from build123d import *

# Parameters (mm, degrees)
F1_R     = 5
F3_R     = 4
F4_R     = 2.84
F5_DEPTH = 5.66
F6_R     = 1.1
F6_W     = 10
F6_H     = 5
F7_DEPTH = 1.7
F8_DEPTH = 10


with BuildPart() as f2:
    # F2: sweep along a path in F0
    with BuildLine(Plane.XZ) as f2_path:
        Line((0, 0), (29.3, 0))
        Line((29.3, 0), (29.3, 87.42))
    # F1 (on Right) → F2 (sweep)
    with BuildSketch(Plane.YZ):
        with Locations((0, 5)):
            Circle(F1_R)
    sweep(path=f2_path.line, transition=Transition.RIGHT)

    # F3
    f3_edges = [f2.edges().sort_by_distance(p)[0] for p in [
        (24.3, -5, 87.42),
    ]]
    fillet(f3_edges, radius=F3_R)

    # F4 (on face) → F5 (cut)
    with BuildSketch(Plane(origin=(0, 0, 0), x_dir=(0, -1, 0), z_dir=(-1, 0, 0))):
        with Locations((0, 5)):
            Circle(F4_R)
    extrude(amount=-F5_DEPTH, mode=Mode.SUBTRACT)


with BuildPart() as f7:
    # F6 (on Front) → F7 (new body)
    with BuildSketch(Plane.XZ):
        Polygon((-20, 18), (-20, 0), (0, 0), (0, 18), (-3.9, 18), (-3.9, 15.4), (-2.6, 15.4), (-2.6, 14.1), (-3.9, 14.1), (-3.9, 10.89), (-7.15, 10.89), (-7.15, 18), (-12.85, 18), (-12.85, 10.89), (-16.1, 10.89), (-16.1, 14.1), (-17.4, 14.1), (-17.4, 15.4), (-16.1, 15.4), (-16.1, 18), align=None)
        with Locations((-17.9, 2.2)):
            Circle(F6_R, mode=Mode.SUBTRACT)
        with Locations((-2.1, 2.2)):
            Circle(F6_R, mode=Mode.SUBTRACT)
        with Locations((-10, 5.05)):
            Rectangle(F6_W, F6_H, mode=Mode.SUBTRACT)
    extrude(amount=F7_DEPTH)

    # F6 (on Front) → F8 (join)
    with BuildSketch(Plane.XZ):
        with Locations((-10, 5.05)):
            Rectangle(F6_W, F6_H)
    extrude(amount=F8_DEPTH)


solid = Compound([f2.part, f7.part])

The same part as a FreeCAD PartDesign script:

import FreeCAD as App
import Part
import Sketcher

V = App.Vector


def edges_at(feature, points):
    """Names of the edges that pass closest to the given points."""
    edges = feature.Shape.Edges
    near = lambda p: min(range(len(edges)), key=lambda i: edges[i].distToShape(Part.Vertex(*p))[0])
    return sorted({f"Edge{near(p) + 1}" for p in points})

doc = App.newDocument("Part")
params = doc.addObject("Spreadsheet::Sheet", "Params")
for row, (alias, value) in enumerate([
    ("sketch1_diameter", "10 mm"),
    ("sketch2_width", "29.3 mm"),
    ("sketch2_height", "87.42 mm"),
    ("fillet_radius", "4 mm"),
    ("sketch3_diameter", "5.68 mm"),
    ("pocket1_length", "5.66 mm"),
    ("sketch4_diameter", "2.2 mm"),
    ("sketch4_width", "20 mm"),
    ("sketch4_width2", "10 mm"),
    ("sketch4_height", "18 mm"),
    ("sketch4_height2", "5 mm"),
    ("pad1_length", "1.7 mm"),
    ("sketch5_width", "10 mm"),
    ("sketch5_height", "5 mm"),
    ("pad2_length", "10 mm"),
], start=1):
    params.set(f"A{row}", alias)
    params.set(f"B{row}", "=" + value)
    params.setAlias(f"B{row}", alias)

body = doc.addObject("PartDesign::Body", "Body")

sketch1 = body.newObject("Sketcher::SketchObject", "Sketch")
sketch1.AttachmentSupport = (doc.getObject("YZ_Plane"), [""])
sketch1.MapMode = "FlatFace"
sketch1.addGeometry(Part.Circle(V(0, 5, 0), V(0, 0, 1), 5), False)
sketch1.addConstraint([
    Sketcher.Constraint("PointOnObject", 0, 3, -2),
    Sketcher.Constraint("Diameter", 0, 10.0),
    Sketcher.Constraint("DistanceY", -1, 1, 0, 3, 5.0),
])
sketch1.setExpression("Constraints[1]", "Params.sketch1_diameter")

sketch2 = body.newObject("Sketcher::SketchObject", "Sketch001")
sketch2.AttachmentSupport = (doc.getObject("XZ_Plane"), [""])
sketch2.MapMode = "FlatFace"
sketch2.addGeometry([
    Part.LineSegment(V(0, 0, 0), V(29.3, 0, 0)),
    Part.LineSegment(V(29.3, 0, 0), V(29.3, 87.42, 0)),
], False)
sketch2.addConstraint([
    Sketcher.Constraint("Coincident", 0, 2, 1, 1),
    Sketcher.Constraint("Horizontal", 0),
    Sketcher.Constraint("Vertical", 1),
    Sketcher.Constraint("Coincident", 0, 1, -1, 1),
    Sketcher.Constraint("DistanceX", 0, 1, 0, 2, 29.3),
    Sketcher.Constraint("DistanceY", 1, 1, 1, 2, 87.42),
])
sketch2.setExpression("Constraints[4]", "Params.sketch2_width")
sketch2.setExpression("Constraints[5]", "Params.sketch2_height")
doc.recompute()

additivepipe = body.newObject("PartDesign::AdditivePipe", "AdditivePipe")
additivepipe.Profile = sketch1
additivepipe.Spine = (sketch2, ["Edge1", "Edge2"])
additivepipe.Transition = "Right corner"
doc.recompute()

fillet = body.newObject("PartDesign::Fillet", "Fillet")
fillet.Base = (additivepipe, edges_at(additivepipe, [(24.3, -5, 87.42)]))
fillet.setExpression("Radius", "Params.fillet_radius")

sketch3 = body.newObject("Sketcher::SketchObject", "Sketch002")
sketch3.AttachmentSupport = (doc.getObject("YZ_Plane"), [""])
sketch3.MapMode = "FlatFace"
sketch3.addGeometry(Part.Circle(V(0, 5, 0), V(0, 0, 1), 2.84), False)
sketch3.addConstraint([
    Sketcher.Constraint("PointOnObject", 0, 3, -2),
    Sketcher.Constraint("Diameter", 0, 5.68),
    Sketcher.Constraint("DistanceY", -1, 1, 0, 3, 5.0),
])
sketch3.setExpression("Constraints[1]", "Params.sketch3_diameter")
pocket1 = body.newObject("PartDesign::Pocket", "Pocket")
pocket1.Profile = sketch3
pocket1.setExpression("Length", "Params.pocket1_length")
pocket1.Reversed = True
body2 = doc.addObject("PartDesign::Body", "Body001")

sketch4 = body2.newObject("Sketcher::SketchObject", "Sketch003")
sketch4.AttachmentSupport = (doc.getObject("XZ_Plane001"), [""])
sketch4.MapMode = "FlatFace"
sketch4.addGeometry([
    Part.LineSegment(V(-20, 18, 0), V(-20, 0, 0)),
    Part.LineSegment(V(-20, 0, 0), V(0, 0, 0)),
    Part.LineSegment(V(0, 0, 0), V(0, 18, 0)),
    Part.LineSegment(V(0, 18, 0), V(-3.9, 18, 0)),
    Part.LineSegment(V(-3.9, 18, 0), V(-3.9, 15.4, 0)),
    Part.LineSegment(V(-3.9, 15.4, 0), V(-2.6, 15.4, 0)),
    Part.LineSegment(V(-2.6, 15.4, 0), V(-2.6, 14.1, 0)),
    Part.LineSegment(V(-2.6, 14.1, 0), V(-3.9, 14.1, 0)),
    Part.LineSegment(V(-3.9, 14.1, 0), V(-3.9, 10.89, 0)),
    Part.LineSegment(V(-3.9, 10.89, 0), V(-7.15, 10.89, 0)),
    Part.LineSegment(V(-7.15, 10.89, 0), V(-7.15, 18, 0)),
    Part.LineSegment(V(-7.15, 18, 0), V(-12.85, 18, 0)),
    Part.LineSegment(V(-12.85, 18, 0), V(-12.85, 10.89, 0)),
    Part.LineSegment(V(-12.85, 10.89, 0), V(-16.1, 10.89, 0)),
    Part.LineSegment(V(-16.1, 10.89, 0), V(-16.1, 14.1, 0)),
    Part.LineSegment(V(-16.1, 14.1, 0), V(-17.4, 14.1, 0)),
    Part.LineSegment(V(-17.4, 14.1, 0), V(-17.4, 15.4, 0)),
    Part.LineSegment(V(-17.4, 15.4, 0), V(-16.1, 15.4, 0)),
    Part.LineSegment(V(-16.1, 15.4, 0), V(-16.1, 18, 0)),
    Part.LineSegment(V(-16.1, 18, 0), V(-20, 18, 0)),
    Part.Circle(V(-17.9, 2.2, 0), V(0, 0, 1), 1.1),
    Part.Circle(V(-2.1, 2.2, 0), V(0, 0, 1), 1.1),
    Part.LineSegment(V(-5, 2.55, 0), V(-15, 2.55, 0)),
    Part.LineSegment(V(-15, 2.55, 0), V(-15, 7.55, 0)),
    Part.LineSegment(V(-15, 7.55, 0), V(-5, 7.55, 0)),
    Part.LineSegment(V(-5, 7.55, 0), V(-5, 2.55, 0)),
], False)
sketch4.addConstraint([
    Sketcher.Constraint("Coincident", 0, 2, 1, 1),
    Sketcher.Constraint("Coincident", 1, 2, 2, 1),
    Sketcher.Constraint("Coincident", 2, 2, 3, 1),
    Sketcher.Constraint("Coincident", 3, 2, 4, 1),
    Sketcher.Constraint("Coincident", 4, 2, 5, 1),
    Sketcher.Constraint("Coincident", 5, 2, 6, 1),
    Sketcher.Constraint("Coincident", 6, 2, 7, 1),
    Sketcher.Constraint("Coincident", 7, 2, 8, 1),
    Sketcher.Constraint("Coincident", 8, 2, 9, 1),
    Sketcher.Constraint("Coincident", 9, 2, 10, 1),
    Sketcher.Constraint("Coincident", 10, 2, 11, 1),
    Sketcher.Constraint("Coincident", 11, 2, 12, 1),
    Sketcher.Constraint("Coincident", 12, 2, 13, 1),
    Sketcher.Constraint("Coincident", 13, 2, 14, 1),
    Sketcher.Constraint("Coincident", 14, 2, 15, 1),
    Sketcher.Constraint("Coincident", 15, 2, 16, 1),
    Sketcher.Constraint("Coincident", 16, 2, 17, 1),
    Sketcher.Constraint("Coincident", 17, 2, 18, 1),
    Sketcher.Constraint("Coincident", 18, 2, 19, 1),
    Sketcher.Constraint("Coincident", 19, 2, 0, 1),
    Sketcher.Constraint("Coincident", 22, 2, 23, 1),
    Sketcher.Constraint("Coincident", 23, 2, 24, 1),
    Sketcher.Constraint("Coincident", 24, 2, 25, 1),
    Sketcher.Constraint("Coincident", 25, 2, 22, 1),
    Sketcher.Constraint("Vertical", 0),
    Sketcher.Constraint("Horizontal", 1),
    Sketcher.Constraint("Vertical", 2),
    Sketcher.Constraint("Horizontal", 3),
    Sketcher.Constraint("Vertical", 4),
    Sketcher.Constraint("Horizontal", 5),
    Sketcher.Constraint("Vertical", 6),
    Sketcher.Constraint("Horizontal", 7),
    Sketcher.Constraint("Vertical", 8),
    Sketcher.Constraint("Horizontal", 9),
    Sketcher.Constraint("Vertical", 10),
    Sketcher.Constraint("Horizontal", 11),
    Sketcher.Constraint("Vertical", 12),
    Sketcher.Constraint("Horizontal", 13),
    Sketcher.Constraint("Vertical", 14),
    Sketcher.Constraint("Horizontal", 15),
    Sketcher.Constraint("Vertical", 16),
    Sketcher.Constraint("Horizontal", 17),
    Sketcher.Constraint("Vertical", 18),
    Sketcher.Constraint("Horizontal", 19),
    Sketcher.Constraint("Horizontal", 22),
    Sketcher.Constraint("Vertical", 23),
    Sketcher.Constraint("Horizontal", 24),
    Sketcher.Constraint("Vertical", 25),
    Sketcher.Constraint("Coincident", 1, 2, -1, 1),
    Sketcher.Constraint("Equal", 20, 21),
    Sketcher.Constraint("Horizontal", 20, 3, 21, 3),
    Sketcher.Constraint("Horizontal", 3, 2, 10, 2),
    Sketcher.Constraint("Horizontal", 9, 2, 12, 2),
    Sketcher.Constraint("Horizontal", 7, 2, 14, 2),
    Sketcher.Constraint("Horizontal", 5, 2, 16, 2),
    Sketcher.Constraint("Horizontal", 11, 2, 18, 2),
    Sketcher.Constraint("Vertical", 4, 2, 7, 2),
    Sketcher.Constraint("Vertical", 14, 2, 17, 2),
    Sketcher.Constraint("Equal", 9, 13),
    Sketcher.Constraint("Equal", 7, 15),
    Sketcher.Constraint("Equal", 3, 19),
    Sketcher.Constraint("Equal", 17, 6),
    Sketcher.Constraint("Diameter", 20, 2.2),
    Sketcher.Constraint("DistanceX", 1, 1, 1, 2, 20.0),
    Sketcher.Constraint("DistanceX", 22, 2, 22, 1, 10.0),
    Sketcher.Constraint("DistanceY", 0, 2, 0, 1, 18.0),
    Sketcher.Constraint("DistanceY", 23, 1, 23, 2, 5.0),
    Sketcher.Constraint("DistanceX", 3, 2, 3, 1, 3.9),
    Sketcher.Constraint("DistanceX", 5, 1, 5, 2, 1.3),
    Sketcher.Constraint("DistanceX", 11, 2, 11, 1, 5.7),
    Sketcher.Constraint("DistanceY", 4, 2, 4, 1, 2.6),
    Sketcher.Constraint("DistanceX", 22, 2, -1, 1, 15.0),
    Sketcher.Constraint("DistanceX", 20, 3, 3, 2, 14.0),
    Sketcher.Constraint("DistanceY", 8, 2, 8, 1, 3.21),
    Sketcher.Constraint("DistanceY", -1, 1, 20, 3, 2.2),
    Sketcher.Constraint("DistanceX", 21, 3, -1, 1, 2.1),
    Sketcher.Constraint("DistanceY", -1, 1, 22, 2, 2.55),
])
sketch4.setExpression("Constraints[62]", "Params.sketch4_diameter")
sketch4.setExpression("Constraints[63]", "Params.sketch4_width")
sketch4.setExpression("Constraints[64]", "Params.sketch4_width2")
sketch4.setExpression("Constraints[65]", "Params.sketch4_height")
sketch4.setExpression("Constraints[66]", "Params.sketch4_height2")
pad1 = body2.newObject("PartDesign::Pad", "Pad")
pad1.Profile = sketch4
pad1.setExpression("Length", "Params.pad1_length")

sketch5 = body2.newObject("Sketcher::SketchObject", "Sketch004")
sketch5.AttachmentSupport = (doc.getObject("XZ_Plane001"), [""])
sketch5.MapMode = "FlatFace"
sketch5.addGeometry([
    Part.LineSegment(V(-15, 7.55, 0), V(-15, 2.55, 0)),
    Part.LineSegment(V(-15, 2.55, 0), V(-5, 2.55, 0)),
    Part.LineSegment(V(-5, 2.55, 0), V(-5, 7.55, 0)),
    Part.LineSegment(V(-5, 7.55, 0), V(-15, 7.55, 0)),
], False)
sketch5.addConstraint([
    Sketcher.Constraint("Coincident", 0, 2, 1, 1),
    Sketcher.Constraint("Coincident", 1, 2, 2, 1),
    Sketcher.Constraint("Coincident", 2, 2, 3, 1),
    Sketcher.Constraint("Coincident", 3, 2, 0, 1),
    Sketcher.Constraint("Vertical", 0),
    Sketcher.Constraint("Horizontal", 1),
    Sketcher.Constraint("Vertical", 2),
    Sketcher.Constraint("Horizontal", 3),
    Sketcher.Constraint("DistanceX", 1, 1, 1, 2, 10.0),
    Sketcher.Constraint("DistanceY", 0, 2, 0, 1, 5.0),
    Sketcher.Constraint("DistanceX", 0, 2, -1, 1, 15.0),
    Sketcher.Constraint("DistanceY", -1, 1, 0, 2, 2.55),
])
sketch5.setExpression("Constraints[8]", "Params.sketch5_width")
sketch5.setExpression("Constraints[9]", "Params.sketch5_height")
pad2 = body2.newObject("PartDesign::Pad", "Pad001")
pad2.Profile = sketch5
pad2.setExpression("Length", "Params.pad2_length")

doc.recompute()
